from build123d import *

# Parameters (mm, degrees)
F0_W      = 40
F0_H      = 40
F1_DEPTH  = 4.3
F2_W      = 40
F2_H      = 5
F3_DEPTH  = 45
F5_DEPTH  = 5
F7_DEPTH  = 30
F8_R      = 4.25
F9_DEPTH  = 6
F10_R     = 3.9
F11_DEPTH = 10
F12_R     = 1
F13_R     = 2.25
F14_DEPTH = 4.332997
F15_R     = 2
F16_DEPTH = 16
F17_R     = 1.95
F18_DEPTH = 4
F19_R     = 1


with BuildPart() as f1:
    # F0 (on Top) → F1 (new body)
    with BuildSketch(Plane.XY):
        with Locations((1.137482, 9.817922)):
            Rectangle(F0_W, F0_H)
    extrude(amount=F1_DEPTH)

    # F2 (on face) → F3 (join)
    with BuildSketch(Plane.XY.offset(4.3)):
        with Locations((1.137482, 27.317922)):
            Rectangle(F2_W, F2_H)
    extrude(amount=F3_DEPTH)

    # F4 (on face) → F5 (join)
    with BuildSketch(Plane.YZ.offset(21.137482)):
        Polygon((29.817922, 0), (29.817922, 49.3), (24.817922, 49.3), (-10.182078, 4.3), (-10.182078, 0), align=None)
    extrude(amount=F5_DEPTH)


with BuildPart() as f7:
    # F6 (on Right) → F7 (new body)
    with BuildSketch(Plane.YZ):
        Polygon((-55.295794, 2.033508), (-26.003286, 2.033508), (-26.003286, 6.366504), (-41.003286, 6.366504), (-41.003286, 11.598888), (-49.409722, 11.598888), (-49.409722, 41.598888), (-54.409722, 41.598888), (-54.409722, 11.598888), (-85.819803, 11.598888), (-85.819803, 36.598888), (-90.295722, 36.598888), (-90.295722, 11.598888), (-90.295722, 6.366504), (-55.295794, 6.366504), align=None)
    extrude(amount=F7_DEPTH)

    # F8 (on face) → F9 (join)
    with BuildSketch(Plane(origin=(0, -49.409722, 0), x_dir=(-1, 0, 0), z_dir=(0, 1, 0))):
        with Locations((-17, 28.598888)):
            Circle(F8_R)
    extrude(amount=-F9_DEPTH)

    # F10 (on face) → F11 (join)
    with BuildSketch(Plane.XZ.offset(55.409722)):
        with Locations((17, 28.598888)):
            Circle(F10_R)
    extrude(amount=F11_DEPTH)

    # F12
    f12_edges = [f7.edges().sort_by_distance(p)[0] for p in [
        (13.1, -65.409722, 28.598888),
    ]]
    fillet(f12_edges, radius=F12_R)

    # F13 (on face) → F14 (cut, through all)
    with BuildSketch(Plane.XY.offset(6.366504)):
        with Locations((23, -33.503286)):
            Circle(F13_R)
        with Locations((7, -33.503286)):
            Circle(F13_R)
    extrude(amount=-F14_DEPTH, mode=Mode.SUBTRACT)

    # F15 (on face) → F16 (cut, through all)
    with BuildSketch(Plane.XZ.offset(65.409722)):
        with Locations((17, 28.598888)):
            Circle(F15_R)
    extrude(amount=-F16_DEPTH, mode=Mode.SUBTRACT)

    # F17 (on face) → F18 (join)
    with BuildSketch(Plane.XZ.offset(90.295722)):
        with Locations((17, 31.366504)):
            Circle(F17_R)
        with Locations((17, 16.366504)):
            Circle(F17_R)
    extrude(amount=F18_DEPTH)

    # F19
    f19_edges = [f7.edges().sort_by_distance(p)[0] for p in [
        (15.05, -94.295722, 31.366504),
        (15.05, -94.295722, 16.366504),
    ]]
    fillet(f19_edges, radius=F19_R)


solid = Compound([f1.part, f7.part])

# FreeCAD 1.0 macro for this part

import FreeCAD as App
import Part
import Sketcher


def edges_at(feature, points):
    """Names of the edges that pass closest to the given points."""
    edges = feature.Shape.Edges
    near = lambda p: min(range(len(edges)), key=lambda i: edges[i].distToShape(Part.Vertex(*p))[0])
    return sorted({f"Edge{near(p) + 1}" for p in points})


def add_polygon(sketch, points):
    """Adds a closed chain of lines whose ends are joined by coincident constraints."""
    first, n = sketch.GeometryCount, len(points)
    for a, b in zip(points, points[1:] + points[:1]):
        sketch.addGeometry(Part.LineSegment(App.Vector(*a, 0), App.Vector(*b, 0)), False)
    for i in range(n):
        sketch.addConstraint(Sketcher.Constraint("Coincident", first + i, 2, first + (i + 1) % n, 1))

doc = App.newDocument("Part")
body = doc.addObject("PartDesign::Body", "Body")

sketch1 = doc.addObject("Sketcher::SketchObject", "Sketch")
body.addObject(sketch1)
sketch1.AttachmentSupport = (doc.XY_Plane, [""])
sketch1.MapMode = "FlatFace"
add_polygon(sketch1, [(-19, 30), (-19, -10), (21, -10), (21, 30)])
sketch1.addConstraint([
    Sketcher.Constraint("Vertical", 0),
    Sketcher.Constraint("Horizontal", 1),
    Sketcher.Constraint("Vertical", 2),
    Sketcher.Constraint("Horizontal", 3),
    Sketcher.Constraint("Equal", 3, 0),
    Sketcher.Constraint("DistanceX", 1, 1, 1, 2, 40.0),
    Sketcher.Constraint("DistanceX", 0, 2, -1, 1, 18.862518),
    Sketcher.Constraint("DistanceY", 0, 2, -1, 1, 10.182078),
])
pad1 = doc.addObject("PartDesign::Pad", "Pad")
body.addObject(pad1)
pad1.Profile = sketch1
pad1.Length = 4.3

sketch2 = doc.addObject("Sketcher::SketchObject", "Sketch001")
body.addObject(sketch2)
sketch2.AttachmentSupport = (doc.XY_Plane, [""])
sketch2.MapMode = "FlatFace"
sketch2.AttachmentOffset = App.Placement(App.Vector(0, 0, 4.3), App.Rotation())
add_polygon(sketch2, [(-19, 30), (-19, 25), (21, 25), (21, 30)])
sketch2.addConstraint([
    Sketcher.Constraint("Vertical", 0),
    Sketcher.Constraint("Horizontal", 1),
    Sketcher.Constraint("Vertical", 2),
    Sketcher.Constraint("Horizontal", 3),
    Sketcher.Constraint("DistanceX", 1, 1, 1, 2, 40.0),
    Sketcher.Constraint("DistanceY", 0, 2, 0, 1, 5.0),
    Sketcher.Constraint("DistanceX", 0, 2, -1, 1, 18.862518),
    Sketcher.Constraint("DistanceY", -1, 1, 0, 2, 24.817922),
])
pad2 = doc.addObject("PartDesign::Pad", "Pad001")
body.addObject(pad2)
pad2.Profile = sketch2
pad2.Length = 45

sketch3 = doc.addObject("Sketcher::SketchObject", "Sketch002")
body.addObject(sketch3)
sketch3.AttachmentSupport = (doc.YZ_Plane, [""])
sketch3.MapMode = "FlatFace"
sketch3.AttachmentOffset = App.Placement(App.Vector(0, 0, 21.137482), App.Rotation())
add_polygon(sketch3, [(29.8, 0), (29.8, 49.3), (24.8, 49.3), (-10.2, 4.3), (-10.2, 0)])
sketch3.addConstraint([
    Sketcher.Constraint("Vertical", 0),
    Sketcher.Constraint("Horizontal", 1),
    Sketcher.Constraint("Vertical", 3),
    Sketcher.Constraint("Horizontal", 4),
    Sketcher.Constraint("PointOnObject", 3, 2, -1),
    Sketcher.Constraint("DistanceX", 1, 2, 1, 1, 5.0),
    Sketcher.Constraint("DistanceX", 4, 1, 4, 2, 40.0),
    Sketcher.Constraint("DistanceY", 0, 1, 0, 2, 49.3),
    Sketcher.Constraint("DistanceY", 3, 2, 3, 1, 4.3),
    Sketcher.Constraint("DistanceX", -1, 1, 0, 2, 29.817922),
])
pad3 = doc.addObject("PartDesign::Pad", "Pad002")
body.addObject(pad3)
pad3.Profile = sketch3
pad3.Length = 5
body2 = doc.addObject("PartDesign::Body", "Body001")

sketch4 = doc.addObject("Sketcher::SketchObject", "Sketch003")
body2.addObject(sketch4)
sketch4.AttachmentSupport = (doc.getObject("YZ_Plane001"), [""])
sketch4.MapMode = "FlatFace"
add_polygon(sketch4, [(-55.3, 2), (-26, 2), (-26, 6.4), (-41, 6.4), (-41, 11.6), (-49.4, 11.6), (-49.4, 41.6), (-54.4, 41.6), (-54.4, 11.6), (-85.8, 11.6), (-85.8, 36.6), (-90.3, 36.6), (-90.3, 6.4), (-55.3, 6.4)])
sketch4.addConstraint([
    Sketcher.Constraint("Horizontal", 0),
    Sketcher.Constraint("Vertical", 1),
    Sketcher.Constraint("Horizontal", 2),
    Sketcher.Constraint("Vertical", 3),
    Sketcher.Constraint("Horizontal", 4),
    Sketcher.Constraint("Vertical", 5),
    Sketcher.Constraint("Horizontal", 6),
    Sketcher.Constraint("Vertical", 7),
    Sketcher.Constraint("Horizontal", 8),
    Sketcher.Constraint("Vertical", 9),
    Sketcher.Constraint("Horizontal", 10),
    Sketcher.Constraint("Vertical", 11),
    Sketcher.Constraint("Horizontal", 12),
    Sketcher.Constraint("Vertical", 13),
    Sketcher.Constraint("Horizontal", 4, 2, 7, 2),
    Sketcher.Constraint("Horizontal", 2, 2, 11, 2),
    Sketcher.Constraint("DistanceX", 2, 2, 2, 1, 15.0),
    Sketcher.Constraint("DistanceX", 6, 2, 6, 1, 5.0),
    Sketcher.Constraint("DistanceY", 5, 1, 5, 2, 30.0),
    Sketcher.Constraint("DistanceY", 9, 1, 9, 2, 25.0),
    Sketcher.Constraint("DistanceX", 10, 2, 6, 2, 35.886),
    Sketcher.Constraint("DistanceX", 0, 1, 0, 2, 29.292508),
    Sketcher.Constraint("DistanceX", 8, 2, 8, 1, 31.410081),
    Sketcher.Constraint("DistanceX", 4, 2, 4, 1, 8.406436),
    Sketcher.Constraint("DistanceY", 1, 1, 1, 2, 4.332996),
    Sketcher.Constraint("DistanceY", 3, 1, 3, 2, 5.232384),
    Sketcher.Constraint("DistanceY", -1, 1, 5, 2, 41.598888),
    Sketcher.Constraint("DistanceX", 10, 2, -1, 1, 90.295722),
])
pad4 = doc.addObject("PartDesign::Pad", "Pad003")
body2.addObject(pad4)
pad4.Profile = sketch4
pad4.Length = 30

sketch5 = doc.addObject("Sketcher::SketchObject", "Sketch004")
body2.addObject(sketch5)
sketch5.AttachmentSupport = (doc.getObject("XZ_Plane001"), [""])
sketch5.MapMode = "FlatFace"
sketch5.AttachmentOffset = App.Placement(App.Vector(0, 0, 49.409722), App.Rotation())
sketch5.addGeometry(Part.Circle(App.Vector(17, 28.6, 0), App.Vector(0, 0, 1), 4.2), False)
sketch5.addConstraint([
    Sketcher.Constraint("Diameter", 0, 8.5),
    Sketcher.Constraint("DistanceX", -1, 1, 0, 3, 17.0),
    Sketcher.Constraint("DistanceY", -1, 1, 0, 3, 28.598888),
])
pad5 = doc.addObject("PartDesign::Pad", "Pad004")
body2.addObject(pad5)
pad5.Profile = sketch5
pad5.Length = 6

sketch6 = doc.addObject("Sketcher::SketchObject", "Sketch005")
body2.addObject(sketch6)
sketch6.AttachmentSupport = (doc.getObject("XZ_Plane001"), [""])
sketch6.MapMode = "FlatFace"
sketch6.AttachmentOffset = App.Placement(App.Vector(0, 0, 55.409722), App.Rotation())
sketch6.addGeometry(Part.Circle(App.Vector(17, 28.6, 0), App.Vector(0, 0, 1), 3.9), False)
sketch6.addConstraint([
    Sketcher.Constraint("Diameter", 0, 7.8),
    Sketcher.Constraint("DistanceX", -1, 1, 0, 3, 17.0),
    Sketcher.Constraint("DistanceY", -1, 1, 0, 3, 28.598888),
])
pad6 = doc.addObject("PartDesign::Pad", "Pad005")
body2.addObject(pad6)
pad6.Profile = sketch6
pad6.Length = 10
doc.recompute()

fillet = doc.addObject("PartDesign::Fillet", "Fillet")
body2.addObject(fillet)
fillet.Base = (pad6, edges_at(pad6, [(13.1, -65.41, 28.599)]))
fillet.Radius = 1

sketch7 = doc.addObject("Sketcher::SketchObject", "Sketch006")
body2.addObject(sketch7)
sketch7.AttachmentSupport = (doc.getObject("XY_Plane001"), [""])
sketch7.MapMode = "FlatFace"
sketch7.AttachmentOffset = App.Placement(App.Vector(0, 0, 6.366504), App.Rotation())
sketch7.addGeometry([
    Part.Circle(App.Vector(23, -33.5, 0), App.Vector(0, 0, 1), 2.2),
    Part.Circle(App.Vector(7, -33.5, 0), App.Vector(0, 0, 1), 2.2),
], False)
sketch7.addConstraint([
    Sketcher.Constraint("Equal", 0, 1),
    Sketcher.Constraint("Horizontal", 0, 3, 1, 3),
    Sketcher.Constraint("Diameter", 0, 4.5),
    Sketcher.Constraint("DistanceX", -1, 1, 0, 3, 23.0),
    Sketcher.Constraint("DistanceX", -1, 1, 1, 3, 7.0),
    Sketcher.Constraint("DistanceY", 0, 3, -1, 1, 33.503286),
])
pocket1 = doc.addObject("PartDesign::Pocket", "Pocket")
body2.addObject(pocket1)
pocket1.Profile = sketch7
pocket1.Type = "ThroughAll"

sketch8 = doc.addObject("Sketcher::SketchObject", "Sketch007")
body2.addObject(sketch8)
sketch8.AttachmentSupport = (doc.getObject("XZ_Plane001"), [""])
sketch8.MapMode = "FlatFace"
sketch8.AttachmentOffset = App.Placement(App.Vector(0, 0, 65.409722), App.Rotation())
sketch8.addGeometry(Part.Circle(App.Vector(17, 28.6, 0), App.Vector(0, 0, 1), 2), False)
sketch8.addConstraint([
    Sketcher.Constraint("Diameter", 0, 4.0),
    Sketcher.Constraint("DistanceX", -1, 1, 0, 3, 17.0),
    Sketcher.Constraint("DistanceY", -1, 1, 0, 3, 28.598888),
])
pocket2 = doc.addObject("PartDesign::Pocket", "Pocket001")
body2.addObject(pocket2)
pocket2.Profile = sketch8
pocket2.Type = "ThroughAll"

sketch9 = doc.addObject("Sketcher::SketchObject", "Sketch008")
body2.addObject(sketch9)
sketch9.AttachmentSupport = (doc.getObject("XZ_Plane001"), [""])
sketch9.MapMode = "FlatFace"
sketch9.AttachmentOffset = App.Placement(App.Vector(0, 0, 90.295722), App.Rotation())
sketch9.addGeometry([
    Part.Circle(App.Vector(17, 31.4, 0), App.Vector(0, 0, 1), 1.9),
    Part.Circle(App.Vector(17, 16.4, 0), App.Vector(0, 0, 1), 1.9),
], False)
sketch9.addConstraint([
    Sketcher.Constraint("Equal", 0, 1),
    Sketcher.Constraint("Vertical", 0, 3, 1, 3),
    Sketcher.Constraint("Diameter", 0, 3.9),
    Sketcher.Constraint("DistanceX", -1, 1, 0, 3, 17.0),
    Sketcher.Constraint("DistanceY", 1, 3, 0, 3, 15.0),
    Sketcher.Constraint("DistanceY", -1, 1, 0, 3, 31.366504),
])
pad7 = doc.addObject("PartDesign::Pad", "Pad006")
body2.addObject(pad7)
pad7.Profile = sketch9
pad7.Length = 4
doc.recompute()

fillet2 = doc.addObject("PartDesign::Fillet", "Fillet001")
body2.addObject(fillet2)
fillet2.Base = (pad7, edges_at(pad7, [(15.05, -94.296, 31.367), (15.05, -94.296, 16.367)]))
fillet2.Radius = 1

doc.recompute()
